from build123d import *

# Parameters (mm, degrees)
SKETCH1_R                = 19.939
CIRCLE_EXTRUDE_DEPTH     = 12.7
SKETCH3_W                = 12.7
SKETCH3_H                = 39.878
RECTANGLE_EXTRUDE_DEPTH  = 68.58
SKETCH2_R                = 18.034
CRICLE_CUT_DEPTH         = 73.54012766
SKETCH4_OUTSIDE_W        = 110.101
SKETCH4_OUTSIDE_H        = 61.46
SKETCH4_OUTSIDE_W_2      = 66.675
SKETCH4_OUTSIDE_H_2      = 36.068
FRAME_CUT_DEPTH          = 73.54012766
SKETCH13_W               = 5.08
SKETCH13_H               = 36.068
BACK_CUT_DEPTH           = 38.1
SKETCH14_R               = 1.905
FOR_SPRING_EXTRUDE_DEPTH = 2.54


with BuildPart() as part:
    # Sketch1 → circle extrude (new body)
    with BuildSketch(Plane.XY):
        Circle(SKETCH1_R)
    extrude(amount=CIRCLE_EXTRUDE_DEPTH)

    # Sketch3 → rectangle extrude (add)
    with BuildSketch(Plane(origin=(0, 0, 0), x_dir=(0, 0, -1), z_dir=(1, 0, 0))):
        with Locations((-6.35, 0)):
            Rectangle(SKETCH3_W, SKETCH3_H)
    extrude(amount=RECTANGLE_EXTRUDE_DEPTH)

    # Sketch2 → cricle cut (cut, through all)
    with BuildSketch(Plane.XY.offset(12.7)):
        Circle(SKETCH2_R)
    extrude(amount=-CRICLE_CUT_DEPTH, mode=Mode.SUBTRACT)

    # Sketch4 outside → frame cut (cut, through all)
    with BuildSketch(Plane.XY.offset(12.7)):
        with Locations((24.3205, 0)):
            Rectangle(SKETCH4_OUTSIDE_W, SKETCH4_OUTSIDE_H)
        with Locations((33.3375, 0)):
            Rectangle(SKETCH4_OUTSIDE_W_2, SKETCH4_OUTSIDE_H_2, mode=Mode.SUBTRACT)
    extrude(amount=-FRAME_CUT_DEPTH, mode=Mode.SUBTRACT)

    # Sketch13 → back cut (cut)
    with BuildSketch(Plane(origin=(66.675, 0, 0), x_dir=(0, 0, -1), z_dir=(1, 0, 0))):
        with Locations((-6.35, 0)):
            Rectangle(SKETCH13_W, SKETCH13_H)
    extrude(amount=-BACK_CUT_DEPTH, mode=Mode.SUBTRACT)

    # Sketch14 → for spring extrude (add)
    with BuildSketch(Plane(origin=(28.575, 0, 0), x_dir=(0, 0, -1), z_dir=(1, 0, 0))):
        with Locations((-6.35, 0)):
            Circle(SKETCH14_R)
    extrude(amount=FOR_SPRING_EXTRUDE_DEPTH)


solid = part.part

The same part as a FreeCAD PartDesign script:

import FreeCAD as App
import Part
import Sketcher
from FreeCAD import Vector
Q = App.Units.Quantity


def add_polygon(sketch, points):
    """Adds a closed chain of lines whose ends are joined by coincident constraints."""
    first, n = sketch.GeometryCount, len(points)
    for a, b in zip(points, points[1:] + points[:1]):
        sketch.addGeometry(Part.LineSegment(App.Vector(*a, 0), App.Vector(*b, 0)), False)
    for i in range(n):
        sketch.addConstraint(Sketcher.Constraint("Coincident", first + i, 2, first + (i + 1) % n, 1))

doc = App.newDocument("Part")
params = doc.addObject("Spreadsheet::Sheet", "Params")
for row, (alias, value) in enumerate([
    ("sketch1_diameter", "1.57 in"),
    ("pad1_length", "0.5 in"),
    ("sketch2_height", "0.5 in"),
    ("sketch2_width", "1.57 in"),
    ("pad2_length", "2.7 in"),
    ("sketch3_diameter", "1.42 in"),
    ("sketch4_height", "1.42 in"),
    ("sketch4_width", "2.625 in"),
    ("sketch5_height", "0.2 in"),
    ("sketch5_width", "1.42 in"),
    ("pocket3_length", "1.5 in"),
    ("sketch6_diameter", "0.15 in"),
    ("pad3_length", "0.1 in"),
], start=1):
    params.set(f"A{row}", alias)
    params.set(f"B{row}", "=" + value)
    params.setAlias(f"B{row}", alias)

body = doc.addObject("PartDesign::Body", "Body")

# Sketch on XY plane
sketch1 = body.newObject("Sketcher::SketchObject", "Sketch")
sketch1.AttachmentSupport = (doc.getObject("XY_Plane"), [""])
sketch1.MapMode = "FlatFace"
sketch1.addGeometry(Part.Circle(Vector(0, 0, 0), Vector(0, 0, 1), 20), False)
sketch1.addConstraint([
    Sketcher.Constraint("Coincident", 0, 3, -1, 1),
    Sketcher.Constraint("Diameter", 0, Q("1.57 in")),
])
sketch1.setExpression("Constraints[1]", "Params.sketch1_diameter")
pad1 = body.newObject("PartDesign::Pad", "Pad")
pad1.Profile = sketch1
pad1.setExpression("Length", "Params.pad1_length")

# Sketch on YZ plane
sketch2 = body.newObject("Sketcher::SketchObject", "Sketch001")
sketch2.AttachmentSupport = (doc.getObject("YZ_Plane"), [""])
sketch2.MapMode = "FlatFace"
add_polygon(sketch2, [(20, 13), (-20, 13), (-20, 0), (20, 0)])  # lines 0-3
sketch2.addConstraint([
    Sketcher.Constraint("Horizontal", 0),
    Sketcher.Constraint("Vertical", 1),
    Sketcher.Constraint("Horizontal", 2),
    Sketcher.Constraint("Vertical", 3),
    Sketcher.Constraint("Symmetric", 1, 2, 2, 2, -1, 1),
    Sketcher.Constraint("DistanceY", 1, 2, 1, 1, Q("0.5 in")),
    Sketcher.Constraint("DistanceX", 0, 2, 0, 1, Q("1.57 in")),
])
sketch2.setExpression("Constraints[9]", "Params.sketch2_height")
sketch2.setExpression("Constraints[10]", "Params.sketch2_width")
pad2 = body.newObject("PartDesign::Pad", "Pad001")
pad2.Profile = sketch2
pad2.setExpression("Length", "Params.pad2_length")

# Sketch on XY plane
sketch3 = body.newObject("Sketcher::SketchObject", "Sketch002")
sketch3.AttachmentSupport = (doc.getObject("XY_Plane"), [""])
sketch3.MapMode = "FlatFace"
sketch3.AttachmentOffset = App.Placement(Vector(0, 0, 0.5 * 25.4), App.Rotation())
sketch3.addGeometry(Part.Circle(Vector(0, 0, 0), Vector(0, 0, 1), 18), False)
sketch3.addConstraint([
    Sketcher.Constraint("Coincident", 0, 3, -1, 1),
    Sketcher.Constraint("Diameter", 0, Q("1.42 in")),
])
sketch3.setExpression("Constraints[1]", "Params.sketch3_diameter")
pocket1 = body.newObject("PartDesign::Pocket", "Pocket")
pocket1.Profile = sketch3
pocket1.Type = "ThroughAll"

# Sketch on XY plane
sketch4 = body.newObject("Sketcher::SketchObject", "Sketch003")
sketch4.AttachmentSupport = (doc.getObject("XY_Plane"), [""])
sketch4.MapMode = "FlatFace"
sketch4.AttachmentOffset = App.Placement(Vector(0, 0, 0.5 * 25.4), App.Rotation())
add_polygon(sketch4, [(-31, 31), (-31, -31), (79, -31), (79, 31)])  # lines 0-3
add_polygon(sketch4, [(67, -18), (0, -18), (0, 18), (67, 18)])  # lines 4-7
sketch4.addConstraint([
    Sketcher.Constraint("Vertical", 0),
    Sketcher.Constraint("Horizontal", 1),
    Sketcher.Constraint("Vertical", 2),
    Sketcher.Constraint("Horizontal", 3),
    Sketcher.Constraint("Horizontal", 4),
    Sketcher.Constraint("Vertical", 5),
    Sketcher.Constraint("Horizontal", 6),
    Sketcher.Constraint("Vertical", 7),
    Sketcher.Constraint("Symmetric", 4, 2, 5, 2, -1, 1),
    Sketcher.Constraint("DistanceY", 5, 1, 5, 2, Q("1.42 in")),
    Sketcher.Constraint("DistanceX", 4, 2, 4, 1, Q("2.625 in")),
    Sketcher.Constraint("DistanceX", 1, 1, 1, 2, 110.101),
    Sketcher.Constraint("DistanceY", 0, 2, 0, 1, 61.46),
    Sketcher.Constraint("DistanceX", 0, 2, -1, 1, 30.73),
    Sketcher.Constraint("DistanceY", 0, 2, -1, 1, 30.73),
])
sketch4.setExpression("Constraints[17]", "Params.sketch4_height")
sketch4.setExpression("Constraints[18]", "Params.sketch4_width")
pocket2 = body.newObject("PartDesign::Pocket", "Pocket001")
pocket2.Profile = sketch4
pocket2.Type = "ThroughAll"

# Sketch on YZ plane
sketch5 = body.newObject("Sketcher::SketchObject", "Sketch004")
sketch5.AttachmentSupport = (doc.getObject("YZ_Plane"), [""])
sketch5.MapMode = "FlatFace"
sketch5.AttachmentOffset = App.Placement(Vector(0, 0, 2.625 * 25.4), App.Rotation())
add_polygon(sketch5, [(18, 9), (-18, 9), (-18, 4), (18, 4)])  # lines 0-3
sketch5.addConstraint([
    Sketcher.Constraint("Horizontal", 0),
    Sketcher.Constraint("Vertical", 1),
    Sketcher.Constraint("Horizontal", 2),
    Sketcher.Constraint("Vertical", 3),
    Sketcher.Constraint("DistanceY", 1, 2, 1, 1, Q("0.2 in")),
    Sketcher.Constraint("DistanceX", 0, 2, 0, 1, Q("1.42 in")),
    Sketcher.Constraint("DistanceX", 0, 2, -1, 1, Q("0.71 in")),
    Sketcher.Constraint("DistanceY", -1, 1, 0, 2, Q("0.35 in")),
])
sketch5.setExpression("Constraints[8]", "Params.sketch5_height")
sketch5.setExpression("Constraints[9]", "Params.sketch5_width")
pocket3 = body.newObject("PartDesign::Pocket", "Pocket002")
pocket3.Profile = sketch5
pocket3.setExpression("Length", "Params.pocket3_length")

# Sketch on YZ plane
sketch6 = body.newObject("Sketcher::SketchObject", "Sketch005")
sketch6.AttachmentSupport = (doc.getObject("YZ_Plane"), [""])
sketch6.MapMode = "FlatFace"
sketch6.AttachmentOffset = App.Placement(Vector(0, 0, 1.125 * 25.4), App.Rotation())
sketch6.addGeometry(Part.Circle(Vector(0, 6.3, 0), Vector(0, 0, 1), 1.9), False)
sketch6.addConstraint([
    Sketcher.Constraint("PointOnObject", 0, 3, -2),
    Sketcher.Constraint("Diameter", 0, Q("0.15 in")),
    Sketcher.Constraint("DistanceY", -1, 1, 0, 3, Q("0.25 in")),
])
sketch6.setExpression("Constraints[1]", "Params.sketch6_diameter")
pad3 = body.newObject("PartDesign::Pad", "Pad002")
pad3.Profile = sketch6
pad3.setExpression("Length", "Params.pad3_length")

doc.recompute()
